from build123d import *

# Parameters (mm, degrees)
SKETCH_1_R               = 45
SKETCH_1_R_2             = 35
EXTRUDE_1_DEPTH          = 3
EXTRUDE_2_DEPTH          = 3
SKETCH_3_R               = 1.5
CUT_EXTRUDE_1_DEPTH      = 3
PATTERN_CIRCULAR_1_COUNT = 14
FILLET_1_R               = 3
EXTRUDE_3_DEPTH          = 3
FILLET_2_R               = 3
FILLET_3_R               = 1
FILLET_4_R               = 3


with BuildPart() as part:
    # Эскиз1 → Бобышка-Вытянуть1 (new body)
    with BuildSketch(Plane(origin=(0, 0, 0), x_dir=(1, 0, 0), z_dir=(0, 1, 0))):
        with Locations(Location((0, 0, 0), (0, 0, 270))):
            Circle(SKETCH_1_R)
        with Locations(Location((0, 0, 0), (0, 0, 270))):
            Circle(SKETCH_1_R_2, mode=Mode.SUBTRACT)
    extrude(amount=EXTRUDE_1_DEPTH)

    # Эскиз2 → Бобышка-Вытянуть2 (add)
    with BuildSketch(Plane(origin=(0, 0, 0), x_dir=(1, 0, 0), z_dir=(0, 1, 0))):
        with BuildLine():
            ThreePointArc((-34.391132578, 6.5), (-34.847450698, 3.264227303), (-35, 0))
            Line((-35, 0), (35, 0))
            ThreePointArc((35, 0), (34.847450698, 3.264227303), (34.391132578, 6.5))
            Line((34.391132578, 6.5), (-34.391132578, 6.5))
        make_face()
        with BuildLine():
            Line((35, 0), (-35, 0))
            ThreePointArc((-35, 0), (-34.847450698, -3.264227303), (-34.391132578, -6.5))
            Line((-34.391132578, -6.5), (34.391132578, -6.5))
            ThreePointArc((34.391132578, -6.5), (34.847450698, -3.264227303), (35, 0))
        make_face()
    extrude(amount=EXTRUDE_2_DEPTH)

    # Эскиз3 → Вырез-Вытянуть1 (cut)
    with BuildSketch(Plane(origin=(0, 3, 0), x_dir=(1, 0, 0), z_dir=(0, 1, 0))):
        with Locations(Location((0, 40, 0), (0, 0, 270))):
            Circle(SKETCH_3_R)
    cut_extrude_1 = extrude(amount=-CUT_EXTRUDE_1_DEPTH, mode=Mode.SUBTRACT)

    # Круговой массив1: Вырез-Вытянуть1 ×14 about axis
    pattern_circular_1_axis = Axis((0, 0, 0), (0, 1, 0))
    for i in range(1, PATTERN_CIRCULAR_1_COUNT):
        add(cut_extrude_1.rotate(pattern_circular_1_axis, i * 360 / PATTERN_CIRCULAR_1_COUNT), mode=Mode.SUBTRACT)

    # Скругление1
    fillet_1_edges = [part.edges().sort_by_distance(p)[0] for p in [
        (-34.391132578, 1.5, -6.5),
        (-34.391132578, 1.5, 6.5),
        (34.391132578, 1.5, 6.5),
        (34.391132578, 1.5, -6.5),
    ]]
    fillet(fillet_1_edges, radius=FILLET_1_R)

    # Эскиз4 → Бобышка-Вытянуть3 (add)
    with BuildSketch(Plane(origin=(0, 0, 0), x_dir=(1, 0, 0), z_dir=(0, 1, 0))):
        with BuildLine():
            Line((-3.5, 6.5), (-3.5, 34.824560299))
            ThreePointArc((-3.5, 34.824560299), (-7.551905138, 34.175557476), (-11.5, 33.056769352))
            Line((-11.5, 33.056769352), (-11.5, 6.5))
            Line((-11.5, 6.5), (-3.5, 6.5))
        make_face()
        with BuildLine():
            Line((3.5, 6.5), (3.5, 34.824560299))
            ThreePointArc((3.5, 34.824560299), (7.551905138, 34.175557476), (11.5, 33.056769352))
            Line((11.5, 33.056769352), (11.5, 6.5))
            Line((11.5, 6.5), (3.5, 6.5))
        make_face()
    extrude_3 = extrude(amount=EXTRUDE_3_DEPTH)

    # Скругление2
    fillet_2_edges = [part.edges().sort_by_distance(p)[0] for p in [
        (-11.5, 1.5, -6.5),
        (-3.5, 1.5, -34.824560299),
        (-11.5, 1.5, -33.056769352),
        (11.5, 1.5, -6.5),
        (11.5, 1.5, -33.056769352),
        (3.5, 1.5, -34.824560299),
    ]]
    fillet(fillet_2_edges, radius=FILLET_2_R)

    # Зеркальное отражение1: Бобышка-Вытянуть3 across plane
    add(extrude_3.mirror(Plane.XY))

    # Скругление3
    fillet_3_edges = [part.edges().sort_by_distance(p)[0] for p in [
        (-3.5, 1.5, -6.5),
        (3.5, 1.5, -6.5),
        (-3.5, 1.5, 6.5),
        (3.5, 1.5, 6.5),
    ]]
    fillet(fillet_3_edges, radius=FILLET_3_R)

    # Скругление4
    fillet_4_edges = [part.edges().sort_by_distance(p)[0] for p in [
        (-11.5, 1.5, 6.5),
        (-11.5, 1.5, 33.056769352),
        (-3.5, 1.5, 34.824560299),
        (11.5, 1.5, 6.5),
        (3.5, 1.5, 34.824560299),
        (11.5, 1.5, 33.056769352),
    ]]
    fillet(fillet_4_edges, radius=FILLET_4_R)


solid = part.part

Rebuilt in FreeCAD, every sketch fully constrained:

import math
import FreeCAD as App
import Part
import Sketcher
from FreeCAD import Vector


def edges_at(feature, points):
    """Names of the edges that pass closest to the given points."""
    edges = feature.Shape.Edges
    near = lambda p: min(range(len(edges)), key=lambda i: edges[i].distToShape(Part.Vertex(*p))[0])
    return sorted({f"Edge{near(p) + 1}" for p in points})

doc = App.newDocument("Part")
body = doc.addObject("PartDesign::Body", "Body")

# Sketch on XZ plane
sketch1 = body.newObject("Sketcher::SketchObject", "Sketch")
sketch1.AttachmentSupport = (doc.getObject("XZ_Plane"), [""])
sketch1.MapMode = "FlatFace"
sketch1.addGeometry([
    Part.Circle(Vector(0, 0, 0), Vector(0, 0, 1), 45),
    Part.Circle(Vector(0, 0, 0), Vector(0, 0, 1), 35),
], False)
sketch1.addConstraint([
    Sketcher.Constraint("Coincident", 0, 3, -1, 1),
    Sketcher.Constraint("Coincident", 1, 3, -1, 1),
    Sketcher.Constraint("Diameter", 0, 90.0),
    Sketcher.Constraint("Diameter", 1, 70.0),
])
pad1 = body.newObject("PartDesign::Pad", "Pad")
pad1.Profile = sketch1
pad1.Length = 3
pad1.Reversed = True

# Sketch on XZ plane
sketch2 = body.newObject("Sketcher::SketchObject", "Sketch001")
sketch2.AttachmentSupport = (doc.getObject("XZ_Plane"), [""])
sketch2.MapMode = "FlatFace"
sketch2.addGeometry([
    Part.ArcOfCircle(Part.Circle(Vector(0, 0, 0), Vector(0, 0, 1), 35), math.radians(180), math.radians(190.70278)),  # 0
    Part.ArcOfCircle(Part.Circle(Vector(0, 0, 0), Vector(0, 0, 1), 35), math.radians(169.29722), math.radians(180)),  # 1
    Part.LineSegment(Vector(-34.391133, 6.5, 0), Vector(34.391133, 6.5, 0)),  # 2
    Part.ArcOfCircle(Part.Circle(Vector(0, 0, 0), Vector(0, 0, 1), 35), math.radians(0), math.radians(10.70278)),  # 3
    Part.ArcOfCircle(Part.Circle(Vector(0, 0, 0), Vector(0, 0, 1), 35), math.radians(-10.70278), math.radians(0)),  # 4
    Part.LineSegment(Vector(34.391133, -6.5, 0), Vector(-34.391133, -6.5, 0)),  # 5
], False)
sketch2.addConstraint([
    Sketcher.Constraint("Tangent", 0, 1, 1, 2),
    Sketcher.Constraint("Coincident", 1, 1, 2, 1),
    Sketcher.Constraint("Coincident", 2, 2, 3, 2),
    Sketcher.Constraint("Tangent", 3, 1, 4, 2),
    Sketcher.Constraint("Coincident", 4, 1, 5, 1),
    Sketcher.Constraint("Coincident", 5, 2, 0, 2),
    Sketcher.Constraint("Horizontal", 2),
    Sketcher.Constraint("Horizontal", 5),
    Sketcher.Constraint("Coincident", 0, 3, -1, 1),
    Sketcher.Constraint("Coincident", 3, 3, -1, 1),
    Sketcher.Constraint("Equal", 0, 1),
    Sketcher.Constraint("Equal", 1, 3),
    Sketcher.Constraint("Equal", 3, 4),
    Sketcher.Constraint("PointOnObject", 0, 1, -1),
    Sketcher.Constraint("PointOnObject", 3, 1, -1),
    Sketcher.Constraint("Vertical", 2, 2, 4, 1),
    Sketcher.Constraint("Radius", 0, 35.0),
    Sketcher.Constraint("DistanceY", 4, 1, 2, 2, 13.0),
])
pad2 = body.newObject("PartDesign::Pad", "Pad001")
pad2.Profile = sketch2
pad2.Length = 3
pad2.Reversed = True

# Sketch on XZ plane
sketch3 = body.newObject("Sketcher::SketchObject", "Sketch002")
sketch3.AttachmentSupport = (doc.getObject("XZ_Plane"), [""])
sketch3.MapMode = "FlatFace"
sketch3.AttachmentOffset = App.Placement(Vector(0, 0, -3), App.Rotation())
sketch3.addGeometry(Part.Circle(Vector(0, -40, 0), Vector(0, 0, 1), 1.5), False)
sketch3.addConstraint([
    Sketcher.Constraint("PointOnObject", 0, 3, -2),
    Sketcher.Constraint("Diameter", 0, 3.0),
    Sketcher.Constraint("DistanceY", 0, 3, -1, 1, 40.0),
])
pocket1 = body.newObject("PartDesign::Pocket", "Pocket")
pocket1.Profile = sketch3
pocket1.Length = 3
pocket1.Reversed = True
doc.recompute()

polarpattern = body.newObject("PartDesign::PolarPattern", "PolarPattern")
polarpattern.Originals = [pocket1]
polarpattern.Axis = (doc.getObject("Y_Axis"), [""])
polarpattern.Angle = 360
polarpattern.Occurrences = 14
body.Tip = polarpattern
doc.recompute()

fillet = body.newObject("PartDesign::Fillet", "Fillet")
fillet.Base = (polarpattern, edges_at(polarpattern, [
    (-34.391, 1.5, -6.5),
    (-34.391, 1.5, 6.5),
    (34.391, 1.5, 6.5),
    (34.391, 1.5, -6.5),
]))
fillet.Radius = 3

# Sketch on XZ plane
sketch4 = body.newObject("Sketcher::SketchObject", "Sketch003")
sketch4.AttachmentSupport = (doc.getObject("XZ_Plane"), [""])
sketch4.MapMode = "FlatFace"
sketch4.addGeometry([
    Part.LineSegment(Vector(-3.5, -6.5, 0), Vector(-3.5, -34.82456, 0)),  # 0
    Part.ArcOfCircle(Part.Circle(Vector(0, 0, 0), Vector(0, 0, 1), 35), math.radians(-109.18209), math.radians(-95.73917)),  # 1
    Part.LineSegment(Vector(-11.5, -33.056769, 0), Vector(-11.5, -6.5, 0)),  # 2
    Part.LineSegment(Vector(-11.5, -6.5, 0), Vector(-3.5, -6.5, 0)),  # 3
    Part.LineSegment(Vector(3.5, -34.82456, 0), Vector(3.5, -6.5, 0)),  # 4
    Part.LineSegment(Vector(3.5, -6.5, 0), Vector(11.5, -6.5, 0)),  # 5
    Part.LineSegment(Vector(11.5, -6.5, 0), Vector(11.5, -33.056769, 0)),  # 6
    Part.ArcOfCircle(Part.Circle(Vector(0, 0, 0), Vector(0, 0, 1), 35), math.radians(-84.26083), math.radians(-70.81791)),  # 7
], False)
sketch4.addConstraint([
    Sketcher.Constraint("Coincident", 0, 2, 1, 2),
    Sketcher.Constraint("Coincident", 1, 1, 2, 1),
    Sketcher.Constraint("Coincident", 2, 2, 3, 1),
    Sketcher.Constraint("Coincident", 3, 2, 0, 1),
    Sketcher.Constraint("Coincident", 4, 2, 5, 1),
    Sketcher.Constraint("Coincident", 5, 2, 6, 1),
    Sketcher.Constraint("Coincident", 6, 2, 7, 2),
    Sketcher.Constraint("Coincident", 7, 1, 4, 1),
    Sketcher.Constraint("Vertical", 0),
    Sketcher.Constraint("Vertical", 2),
    Sketcher.Constraint("Horizontal", 3),
    Sketcher.Constraint("Vertical", 4),
    Sketcher.Constraint("Horizontal", 5),
    Sketcher.Constraint("Vertical", 6),
    Sketcher.Constraint("Coincident", 1, 3, -1, 1),
    Sketcher.Constraint("Coincident", 7, 3, -1, 1),
    Sketcher.Constraint("Equal", 1, 7),
    Sketcher.Constraint("Symmetric", 3, 2, 4, 2, -2),
    Sketcher.Constraint("Horizontal", 1, 1, 6, 2),
    Sketcher.Constraint("Radius", 1, 35.0),
    Sketcher.Constraint("DistanceX", 3, 1, 3, 2, 8.0),
    Sketcher.Constraint("DistanceX", 3, 2, 4, 2, 7.0),
    Sketcher.Constraint("DistanceY", 2, 2, -1, 1, 6.5),
])
pad3 = body.newObject("PartDesign::Pad", "Pad002")
pad3.Profile = sketch4
pad3.Length = 3
pad3.Reversed = True
doc.recompute()

fillet2 = body.newObject("PartDesign::Fillet", "Fillet001")
fillet2.Base = (pad3, edges_at(pad3, [
    (-11.5, 1.5, -6.5),
    (-3.5, 1.5, -34.825),
    (-11.5, 1.5, -33.057),
    (11.5, 1.5, -6.5),
    (11.5, 1.5, -33.057),
    (3.5, 1.5, -34.825),
]))
fillet2.Radius = 3
doc.recompute()

mirrored = body.newObject("PartDesign::Mirrored", "Mirrored")
mirrored.Originals = [pad3]
mirrored.MirrorPlane = (doc.getObject("XY_Plane"), [""])
body.Tip = mirrored
doc.recompute()

fillet3 = body.newObject("PartDesign::Fillet", "Fillet002")
fillet3.Base = (mirrored, edges_at(mirrored, [
    (-3.5, 1.5, -6.5),
    (3.5, 1.5, -6.5),
    (-3.5, 1.5, 6.5),
    (3.5, 1.5, 6.5),
]))
fillet3.Radius = 1
doc.recompute()

fillet4 = body.newObject("PartDesign::Fillet", "Fillet003")
fillet4.Base = (fillet3, edges_at(fillet3, [
    (-11.5, 1.5, 6.5),
    (-11.5, 1.5, 33.057),
    (-3.5, 1.5, 34.825),
    (11.5, 1.5, 6.5),
    (3.5, 1.5, 34.825),
    (11.5, 1.5, 33.057),
]))
fillet4.Radius = 3

doc.recompute()
